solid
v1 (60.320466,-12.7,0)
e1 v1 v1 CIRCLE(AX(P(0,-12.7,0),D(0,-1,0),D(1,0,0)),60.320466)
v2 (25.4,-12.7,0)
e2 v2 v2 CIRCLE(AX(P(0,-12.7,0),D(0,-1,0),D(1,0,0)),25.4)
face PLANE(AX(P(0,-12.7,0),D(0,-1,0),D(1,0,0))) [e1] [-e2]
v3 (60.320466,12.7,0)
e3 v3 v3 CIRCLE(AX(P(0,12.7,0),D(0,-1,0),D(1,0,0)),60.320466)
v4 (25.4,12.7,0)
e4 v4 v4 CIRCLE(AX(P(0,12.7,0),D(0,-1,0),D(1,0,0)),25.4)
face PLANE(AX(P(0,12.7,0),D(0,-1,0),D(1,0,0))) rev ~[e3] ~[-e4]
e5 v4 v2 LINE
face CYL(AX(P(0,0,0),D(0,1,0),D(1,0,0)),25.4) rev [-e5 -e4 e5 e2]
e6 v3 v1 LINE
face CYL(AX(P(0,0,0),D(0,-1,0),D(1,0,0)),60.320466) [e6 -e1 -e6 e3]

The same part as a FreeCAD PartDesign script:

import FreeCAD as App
import Part
import Sketcher

V = App.Vector
Q = App.Units.Quantity

doc = App.newDocument("Part")
params = doc.addObject("Spreadsheet::Sheet", "Params")
for row, (alias, value) in enumerate([
    ("sketch1_diameter", "2 in"),
    ("pad1_length", "0.4 in"),
    ("sketch2_diameter", "2 in"),
    ("pad2_length", "1 in"),
], start=1):
    params.set(f"A{row}", alias)
    params.set(f"B{row}", "=" + value)
    params.setAlias(f"B{row}", alias)

body = doc.addObject("PartDesign::Body", "Body")

# Sketch on XZ plane
sketch1 = body.newObject("Sketcher::SketchObject", "Sketch")
sketch1.AttachmentSupport = (doc.getObject("XZ_Plane"), [""])
sketch1.MapMode = "FlatFace"
sketch1.addGeometry([
    Part.Circle(V(0, 0, 0), V(0, 0, 1), 60),
    Part.Circle(V(0, 0, 0), V(0, 0, 1), 25),
], False)
sketch1.addConstraint([
    Sketcher.Constraint("Coincident", 0, 3, -1, 1),
    Sketcher.Constraint("Coincident", 1, 3, -1, 1),
    Sketcher.Constraint("Diameter", 1, Q("2 in")),
    Sketcher.Constraint("Diameter", 0, Q("120.640932 mm")),
])
sketch1.setExpression("Constraints[2]", "Params.sketch1_diameter")
pad1 = body.newObject("PartDesign::Pad", "Pad")
pad1.Profile = sketch1
pad1.setExpression("Length", "Params.pad1_length")

# Sketch on XZ plane
sketch2 = body.newObject("Sketcher::SketchObject", "Sketch001")
sketch2.AttachmentSupport = (doc.getObject("XZ_Plane"), [""])
sketch2.MapMode = "FlatFace"
sketch2.addGeometry([
    Part.Circle(V(0, 0, 0), V(0, 0, 1), 60),
    Part.Circle(V(0, 0, 0), V(0, 0, 1), 25),
], False)
sketch2.addConstraint([
    Sketcher.Constraint("Coincident", 0, 3, -1, 1),
    Sketcher.Constraint("Coincident", 1, 3, -1, 1),
    Sketcher.Constraint("Diameter", 1, Q("2 in")),
    Sketcher.Constraint("Diameter", 0, Q("120.640932 mm")),
])
sketch2.setExpression("Constraints[2]", "Params.sketch2_diameter")
pad2 = body.newObject("PartDesign::Pad", "Pad001")
pad2.Profile = sketch2
pad2.setExpression("Length", "Params.pad2_length")
pad2.Midplane = True

doc.recompute()
